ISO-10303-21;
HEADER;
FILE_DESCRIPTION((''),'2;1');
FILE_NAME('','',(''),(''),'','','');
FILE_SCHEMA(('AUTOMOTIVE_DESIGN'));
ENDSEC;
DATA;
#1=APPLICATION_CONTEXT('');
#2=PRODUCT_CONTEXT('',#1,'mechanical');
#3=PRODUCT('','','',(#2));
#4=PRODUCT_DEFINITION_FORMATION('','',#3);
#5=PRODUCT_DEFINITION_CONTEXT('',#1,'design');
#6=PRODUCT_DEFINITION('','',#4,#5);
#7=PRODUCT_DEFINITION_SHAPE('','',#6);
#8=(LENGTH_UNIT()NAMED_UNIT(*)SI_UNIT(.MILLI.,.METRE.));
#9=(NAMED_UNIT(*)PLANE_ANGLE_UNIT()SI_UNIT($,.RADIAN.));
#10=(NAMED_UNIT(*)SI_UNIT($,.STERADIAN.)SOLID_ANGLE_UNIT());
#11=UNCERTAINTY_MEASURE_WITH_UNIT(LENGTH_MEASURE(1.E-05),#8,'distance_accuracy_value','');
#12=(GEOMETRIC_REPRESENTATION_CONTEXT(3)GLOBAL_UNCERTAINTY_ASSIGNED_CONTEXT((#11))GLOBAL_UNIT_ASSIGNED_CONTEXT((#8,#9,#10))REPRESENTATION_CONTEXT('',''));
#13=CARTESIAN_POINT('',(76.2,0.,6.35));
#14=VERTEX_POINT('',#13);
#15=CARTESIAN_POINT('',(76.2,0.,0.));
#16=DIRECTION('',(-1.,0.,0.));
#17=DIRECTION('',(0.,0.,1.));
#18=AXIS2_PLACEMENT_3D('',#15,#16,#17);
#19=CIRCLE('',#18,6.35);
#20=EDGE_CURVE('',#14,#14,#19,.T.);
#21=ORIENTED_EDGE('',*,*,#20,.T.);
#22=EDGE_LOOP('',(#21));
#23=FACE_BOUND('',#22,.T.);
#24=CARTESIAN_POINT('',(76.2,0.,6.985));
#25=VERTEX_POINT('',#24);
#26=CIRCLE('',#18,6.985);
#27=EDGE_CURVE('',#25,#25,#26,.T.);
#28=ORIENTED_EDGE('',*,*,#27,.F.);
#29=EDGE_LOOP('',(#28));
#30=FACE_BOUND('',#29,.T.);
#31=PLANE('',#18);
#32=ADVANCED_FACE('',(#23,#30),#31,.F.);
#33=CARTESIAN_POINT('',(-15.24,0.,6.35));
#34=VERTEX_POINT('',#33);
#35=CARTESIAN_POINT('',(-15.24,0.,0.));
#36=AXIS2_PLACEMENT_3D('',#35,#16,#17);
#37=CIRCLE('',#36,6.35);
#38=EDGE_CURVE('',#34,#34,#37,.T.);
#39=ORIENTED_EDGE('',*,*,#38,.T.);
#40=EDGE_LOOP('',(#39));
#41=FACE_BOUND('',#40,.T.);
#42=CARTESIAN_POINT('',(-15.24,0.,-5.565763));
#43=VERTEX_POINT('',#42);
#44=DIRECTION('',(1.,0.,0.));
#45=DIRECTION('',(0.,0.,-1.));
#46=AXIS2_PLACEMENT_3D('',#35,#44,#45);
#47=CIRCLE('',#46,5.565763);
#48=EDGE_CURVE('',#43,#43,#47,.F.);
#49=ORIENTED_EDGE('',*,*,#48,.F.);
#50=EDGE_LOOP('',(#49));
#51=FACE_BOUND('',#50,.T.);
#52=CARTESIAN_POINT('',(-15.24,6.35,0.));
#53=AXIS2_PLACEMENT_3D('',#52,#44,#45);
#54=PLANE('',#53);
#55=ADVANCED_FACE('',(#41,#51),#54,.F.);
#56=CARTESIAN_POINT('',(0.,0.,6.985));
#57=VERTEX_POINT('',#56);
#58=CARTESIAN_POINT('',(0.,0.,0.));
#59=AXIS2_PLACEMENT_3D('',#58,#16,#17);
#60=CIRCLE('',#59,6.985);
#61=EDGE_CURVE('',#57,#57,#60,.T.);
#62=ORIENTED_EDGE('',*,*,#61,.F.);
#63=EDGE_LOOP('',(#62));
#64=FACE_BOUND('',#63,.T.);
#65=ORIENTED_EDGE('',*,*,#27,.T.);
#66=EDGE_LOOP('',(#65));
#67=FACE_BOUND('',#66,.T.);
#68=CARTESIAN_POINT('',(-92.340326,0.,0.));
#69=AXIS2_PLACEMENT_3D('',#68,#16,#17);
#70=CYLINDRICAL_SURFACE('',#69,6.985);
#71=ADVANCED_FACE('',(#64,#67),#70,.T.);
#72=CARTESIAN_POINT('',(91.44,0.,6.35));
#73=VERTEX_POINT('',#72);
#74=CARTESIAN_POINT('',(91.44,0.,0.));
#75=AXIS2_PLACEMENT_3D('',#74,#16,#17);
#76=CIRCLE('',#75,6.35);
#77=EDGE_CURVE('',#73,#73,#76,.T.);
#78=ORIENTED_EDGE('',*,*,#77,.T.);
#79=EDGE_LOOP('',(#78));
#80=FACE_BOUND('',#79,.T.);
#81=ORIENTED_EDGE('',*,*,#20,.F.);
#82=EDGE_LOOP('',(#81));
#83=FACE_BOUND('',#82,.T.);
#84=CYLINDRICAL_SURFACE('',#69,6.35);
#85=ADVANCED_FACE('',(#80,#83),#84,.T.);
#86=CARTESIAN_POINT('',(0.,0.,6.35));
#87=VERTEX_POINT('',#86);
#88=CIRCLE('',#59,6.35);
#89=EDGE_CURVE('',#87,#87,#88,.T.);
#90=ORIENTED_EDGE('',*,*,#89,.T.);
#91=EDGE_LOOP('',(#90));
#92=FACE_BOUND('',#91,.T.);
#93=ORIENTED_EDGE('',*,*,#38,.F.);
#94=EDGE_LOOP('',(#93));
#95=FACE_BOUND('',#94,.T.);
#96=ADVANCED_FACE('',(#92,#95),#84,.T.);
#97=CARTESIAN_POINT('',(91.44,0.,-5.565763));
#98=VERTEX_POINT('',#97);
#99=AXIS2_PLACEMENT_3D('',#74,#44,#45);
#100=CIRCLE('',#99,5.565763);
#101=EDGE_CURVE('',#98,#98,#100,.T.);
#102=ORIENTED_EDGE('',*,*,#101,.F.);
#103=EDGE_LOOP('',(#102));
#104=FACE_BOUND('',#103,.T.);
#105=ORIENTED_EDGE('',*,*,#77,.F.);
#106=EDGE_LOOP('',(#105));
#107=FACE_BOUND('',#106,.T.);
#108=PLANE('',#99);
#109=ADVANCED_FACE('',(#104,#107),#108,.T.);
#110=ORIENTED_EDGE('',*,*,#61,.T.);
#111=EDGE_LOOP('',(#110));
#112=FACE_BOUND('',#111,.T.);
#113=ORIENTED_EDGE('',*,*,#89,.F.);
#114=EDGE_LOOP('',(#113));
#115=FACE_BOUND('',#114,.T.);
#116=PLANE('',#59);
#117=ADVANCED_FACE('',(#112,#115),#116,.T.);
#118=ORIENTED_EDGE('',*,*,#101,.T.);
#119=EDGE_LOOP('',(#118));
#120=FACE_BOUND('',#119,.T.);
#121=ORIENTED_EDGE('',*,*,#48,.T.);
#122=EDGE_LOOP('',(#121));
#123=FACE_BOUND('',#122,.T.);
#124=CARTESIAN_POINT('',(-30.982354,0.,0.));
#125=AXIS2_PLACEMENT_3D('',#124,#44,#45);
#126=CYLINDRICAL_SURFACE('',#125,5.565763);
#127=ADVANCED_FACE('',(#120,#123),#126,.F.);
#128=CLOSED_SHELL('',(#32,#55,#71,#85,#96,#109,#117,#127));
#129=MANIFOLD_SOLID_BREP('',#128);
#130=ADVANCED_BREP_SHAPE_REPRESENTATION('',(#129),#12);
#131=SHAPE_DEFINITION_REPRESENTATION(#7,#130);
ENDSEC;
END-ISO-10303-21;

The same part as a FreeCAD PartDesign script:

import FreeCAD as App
import Part
import Sketcher
Q = App.Units.Quantity


def add_polygon(sketch, points):
    """Adds a closed chain of lines whose ends are joined by coincident constraints."""
    first, n = sketch.GeometryCount, len(points)
    for a, b in zip(points, points[1:] + points[:1]):
        sketch.addGeometry(Part.LineSegment(App.Vector(*a, 0), App.Vector(*b, 0)), False)
    for i in range(n):
        sketch.addConstraint(Sketcher.Constraint("Coincident", first + i, 2, first + (i + 1) % n, 1))

doc = App.newDocument("Part")
body = doc.addObject("PartDesign::Body", "Body")

sketch1 = doc.addObject("Sketcher::SketchObject", "Sketch")
body.addObject(sketch1)
sketch1.AttachmentSupport = (doc.XY_Plane, [""])
sketch1.MapMode = "FlatFace"
add_polygon(sketch1, [(0, 7), (0, 6.3), (-15.2, 6.3), (-15.2, 0), (91.4, 0), (91.4, 6.3), (76.2, 6.3), (76.2, 7)])
sketch1.addConstraint(Sketcher.Constraint("Vertical", 0))
sketch1.addConstraint(Sketcher.Constraint("Horizontal", 1))
sketch1.addConstraint(Sketcher.Constraint("Vertical", 2))
sketch1.addConstraint(Sketcher.Constraint("Horizontal", 3))
sketch1.addConstraint(Sketcher.Constraint("Vertical", 4))
sketch1.addConstraint(Sketcher.Constraint("Horizontal", 5))
sketch1.addConstraint(Sketcher.Constraint("Vertical", 6))
sketch1.addConstraint(Sketcher.Constraint("Horizontal", 7))
sketch1.addConstraint(Sketcher.Constraint("PointOnObject", 0, 2, -2))
sketch1.addConstraint(Sketcher.Constraint("PointOnObject", 2, 2, -1))
sketch1.addConstraint(Sketcher.Constraint("Horizontal", 1, 2, 4, 2))
sketch1.addConstraint(Sketcher.Constraint("Equal", 1, 5))
sketch1.addConstraint(Sketcher.Constraint("DistanceX", 7, 2, 7, 1, Q("3 in")))
sketch1.addConstraint(Sketcher.Constraint("DistanceX", 1, 2, 1, 1, Q("0.6 in")))
sketch1.addConstraint(Sketcher.Constraint("DistanceY", 2, 2, 2, 1, Q("0.25 in")))
sketch1.addConstraint(Sketcher.Constraint("DistanceY", 0, 2, 0, 1, Q("0.025 in")))
revolution = doc.addObject("PartDesign::Revolution", "Revolution")
body.addObject(revolution)
revolution.Profile = sketch1
revolution.ReferenceAxis = (sketch1, ["H_Axis"])
revolution.Angle = 360

sketch2 = doc.addObject("Sketcher::SketchObject", "Sketch001")
body.addObject(sketch2)
sketch2.AttachmentSupport = (doc.YZ_Plane, [""])
sketch2.MapMode = "FlatFace"
sketch2.AttachmentOffset = App.Placement(App.Vector(0, 0, 3.6 * 25.4), App.Rotation())
sketch2.addGeometry(Part.Circle(App.Vector(0, 0, 0), App.Vector(0, 0, 1), 6), False)
sketch2.addConstraint(Sketcher.Constraint("Coincident", 0, 3, -1, 1))
sketch2.addConstraint(Sketcher.Constraint("Diameter", 0, 11.131525))
pocket1 = doc.addObject("PartDesign::Pocket", "Pocket")
body.addObject(pocket1)
pocket1.Profile = sketch2
pocket1.Length = Q("4.2 in")

doc.recompute()
